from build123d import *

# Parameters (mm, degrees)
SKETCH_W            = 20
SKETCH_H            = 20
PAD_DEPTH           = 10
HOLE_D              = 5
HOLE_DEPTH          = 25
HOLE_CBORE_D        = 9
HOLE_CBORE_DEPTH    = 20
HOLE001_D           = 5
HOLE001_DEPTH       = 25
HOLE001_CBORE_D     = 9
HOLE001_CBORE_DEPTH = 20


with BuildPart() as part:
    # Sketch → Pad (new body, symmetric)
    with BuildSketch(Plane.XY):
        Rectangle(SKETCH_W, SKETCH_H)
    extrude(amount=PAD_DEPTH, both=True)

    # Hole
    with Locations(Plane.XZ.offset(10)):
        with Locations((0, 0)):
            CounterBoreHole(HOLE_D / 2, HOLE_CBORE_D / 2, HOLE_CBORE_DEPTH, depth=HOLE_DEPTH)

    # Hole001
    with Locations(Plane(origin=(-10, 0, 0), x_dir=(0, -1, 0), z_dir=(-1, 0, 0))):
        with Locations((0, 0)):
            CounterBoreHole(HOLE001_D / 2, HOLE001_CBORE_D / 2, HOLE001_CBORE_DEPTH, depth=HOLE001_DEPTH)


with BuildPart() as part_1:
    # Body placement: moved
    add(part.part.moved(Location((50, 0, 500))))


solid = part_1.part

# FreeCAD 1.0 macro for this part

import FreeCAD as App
import Part
import Sketcher

V = App.Vector
Q = App.Units.Quantity

doc = App.newDocument("Part")
body = doc.addObject("PartDesign::Body", "Body")

sketch1 = body.newObject("Sketcher::SketchObject", "Sketch")
sketch1.AttachmentSupport = (doc.getObject("XY_Plane"), [""])
sketch1.MapMode = "FlatFace"
sketch1.addGeometry([
    Part.LineSegment(V(-10, 10, 0), V(-10, -10, 0)),
    Part.LineSegment(V(-10, -10, 0), V(10, -10, 0)),
    Part.LineSegment(V(10, -10, 0), V(10, 10, 0)),
    Part.LineSegment(V(10, 10, 0), V(-10, 10, 0)),
], False)
sketch1.addConstraint([
    Sketcher.Constraint("Coincident", 0, 2, 1, 1),
    Sketcher.Constraint("Coincident", 1, 2, 2, 1),
    Sketcher.Constraint("Coincident", 2, 2, 3, 1),
    Sketcher.Constraint("Coincident", 3, 2, 0, 1),
    Sketcher.Constraint("Vertical", 0),
    Sketcher.Constraint("Horizontal", 1),
    Sketcher.Constraint("Vertical", 2),
    Sketcher.Constraint("Horizontal", 3),
    Sketcher.Constraint("Symmetric", 0, 2, 2, 2, -1, 1),
    Sketcher.Constraint("Equal", 3, 0),
    Sketcher.Constraint("DistanceX", 1, 1, 1, 2, Q("20 mm")),
])
pad1 = body.newObject("PartDesign::Pad", "Pad")
pad1.Profile = sketch1
pad1.Length = 20
pad1.Midplane = True

sketch2 = body.newObject("Sketcher::SketchObject", "Sketch001")
sketch2.AttachmentSupport = (doc.getObject("XZ_Plane"), [""])
sketch2.MapMode = "FlatFace"
sketch2.AttachmentOffset = App.Placement(V(0, 0, 10), App.Rotation())
sketch2.addGeometry(Part.Circle(V(0, 0, 0), V(0, 0, 1), 2.5), False)
sketch2.addConstraint([
    Sketcher.Constraint("Coincident", 0, 3, -1, 1),
    Sketcher.Constraint("Diameter", 0, Q("5 mm")),
])
doc.recompute()
hole = body.newObject("PartDesign::Hole", "Hole")
hole.Profile = sketch2
hole.ThreadType = "None"
hole.Diameter = 5
hole.DepthType = "Dimension"
hole.Depth = 25
hole.DrillPoint = "Flat"
hole.HoleCutType = "Counterbore"
hole.HoleCutDiameter = 9
hole.HoleCutDepth = 20

sketch3 = body.newObject("Sketcher::SketchObject", "Sketch002")
sketch3.AttachmentSupport = (doc.getObject("YZ_Plane"), [""])
sketch3.MapMode = "FlatFace"
sketch3.AttachmentOffset = App.Placement(V(0, 0, -10), App.Rotation())
sketch3.addGeometry(Part.Circle(V(0, 0, 0), V(0, 0, 1), 2.5), False)
sketch3.addConstraint([
    Sketcher.Constraint("Coincident", 0, 3, -1, 1),
    Sketcher.Constraint("Diameter", 0, Q("5 mm")),
])
doc.recompute()
hole2 = body.newObject("PartDesign::Hole", "Hole001")
hole2.Profile = sketch3
hole2.ThreadType = "None"
hole2.Diameter = 5
hole2.DepthType = "Dimension"
hole2.Depth = 25
hole2.DrillPoint = "Flat"
hole2.HoleCutType = "Counterbore"
hole2.HoleCutDiameter = 9
hole2.HoleCutDepth = 20
hole2.Reversed = True
body2 = doc.addObject("PartDesign::Body", "Body001")
doc.recompute()

body.Placement = App.Placement(V(50, 0, 500), App.Rotation(V(0, 0, 1), 0))
boolean = body2.newObject("PartDesign::Boolean", "Boolean")
boolean.Type = "Fuse"
boolean.addObjects([body])

doc.recompute()
